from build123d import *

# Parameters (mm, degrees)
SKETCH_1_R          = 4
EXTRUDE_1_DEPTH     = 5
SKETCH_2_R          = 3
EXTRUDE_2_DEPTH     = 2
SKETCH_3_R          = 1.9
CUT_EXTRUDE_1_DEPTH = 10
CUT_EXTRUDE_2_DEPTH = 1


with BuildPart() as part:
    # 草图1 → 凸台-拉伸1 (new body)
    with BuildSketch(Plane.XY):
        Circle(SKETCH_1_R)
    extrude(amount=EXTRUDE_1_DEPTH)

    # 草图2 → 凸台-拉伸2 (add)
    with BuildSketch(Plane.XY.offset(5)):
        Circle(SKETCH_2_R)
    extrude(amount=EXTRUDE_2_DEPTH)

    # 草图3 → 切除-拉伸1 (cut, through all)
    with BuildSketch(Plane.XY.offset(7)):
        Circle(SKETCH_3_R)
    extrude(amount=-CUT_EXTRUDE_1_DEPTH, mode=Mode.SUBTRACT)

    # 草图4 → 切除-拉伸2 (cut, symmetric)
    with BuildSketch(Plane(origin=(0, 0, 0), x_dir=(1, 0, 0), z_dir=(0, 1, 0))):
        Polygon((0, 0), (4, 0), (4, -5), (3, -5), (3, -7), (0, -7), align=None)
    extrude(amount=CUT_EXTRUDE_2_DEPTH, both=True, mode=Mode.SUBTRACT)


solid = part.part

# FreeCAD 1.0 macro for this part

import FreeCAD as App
import Part
import Sketcher
from FreeCAD import Vector
Q = App.Units.Quantity

doc = App.newDocument("Part")
params = doc.addObject("Spreadsheet::Sheet", "Params")
for row, (alias, value) in enumerate([
    ("sketch1_diameter", "8 mm"),
    ("pad1_length", "5 mm"),
    ("sketch2_diameter", "6 mm"),
    ("pad2_length", "2 mm"),
    ("sketch3_diameter", "3.8 mm"),
    ("sketch4_width", "4 mm"),
    ("sketch4_width2", "3 mm"),
    ("sketch4_height", "7 mm"),
    ("sketch4_height2", "2 mm"),
    ("pocket2_length", "2 mm"),
], start=1):
    params.set(f"A{row}", alias)
    params.set(f"B{row}", "=" + value)
    params.setAlias(f"B{row}", alias)

body = doc.addObject("PartDesign::Body", "Body")

# Sketch on XY plane
sketch1 = body.newObject("Sketcher::SketchObject", "Sketch")
sketch1.AttachmentSupport = (doc.getObject("XY_Plane"), [""])
sketch1.MapMode = "FlatFace"
sketch1.addGeometry(Part.Circle(Vector(0, 0, 0), Vector(0, 0, 1), 4), False)
sketch1.addConstraint(Sketcher.Constraint("Coincident", 0, 3, -1, 1))
sketch1.addConstraint(Sketcher.Constraint("Diameter", 0, Q("8 mm")))
sketch1.setExpression("Constraints[1]", "Params.sketch1_diameter")
pad1 = body.newObject("PartDesign::Pad", "Pad")
pad1.Profile = sketch1
pad1.setExpression("Length", "Params.pad1_length")

# Sketch on XY plane
sketch2 = body.newObject("Sketcher::SketchObject", "Sketch001")
sketch2.AttachmentSupport = (doc.getObject("XY_Plane"), [""])
sketch2.MapMode = "FlatFace"
sketch2.AttachmentOffset = App.Placement(Vector(0, 0, 5), App.Rotation())
sketch2.addGeometry(Part.Circle(Vector(0, 0, 0), Vector(0, 0, 1), 3), False)
sketch2.addConstraint(Sketcher.Constraint("Coincident", 0, 3, -1, 1))
sketch2.addConstraint(Sketcher.Constraint("Diameter", 0, Q("6 mm")))
sketch2.setExpression("Constraints[1]", "Params.sketch2_diameter")
pad2 = body.newObject("PartDesign::Pad", "Pad001")
pad2.Profile = sketch2
pad2.setExpression("Length", "Params.pad2_length")

# Sketch on XY plane
sketch3 = body.newObject("Sketcher::SketchObject", "Sketch002")
sketch3.AttachmentSupport = (doc.getObject("XY_Plane"), [""])
sketch3.MapMode = "FlatFace"
sketch3.AttachmentOffset = App.Placement(Vector(0, 0, 7), App.Rotation())
sketch3.addGeometry(Part.Circle(Vector(0, 0, 0), Vector(0, 0, 1), 1.9), False)
sketch3.addConstraint(Sketcher.Constraint("Coincident", 0, 3, -1, 1))
sketch3.addConstraint(Sketcher.Constraint("Diameter", 0, Q("3.8 mm")))
sketch3.setExpression("Constraints[1]", "Params.sketch3_diameter")
pocket1 = body.newObject("PartDesign::Pocket", "Pocket")
pocket1.Profile = sketch3
pocket1.Type = "ThroughAll"

# Sketch on XZ plane
sketch4 = body.newObject("Sketcher::SketchObject", "Sketch003")
sketch4.AttachmentSupport = (doc.getObject("XZ_Plane"), [""])
sketch4.MapMode = "FlatFace"
sketch4.addGeometry(Part.LineSegment(Vector(4, 0, 0), Vector(0, 0, 0)), False)
sketch4.addGeometry(Part.LineSegment(Vector(0, 0, 0), Vector(0, 7, 0)), False)
sketch4.addGeometry(Part.LineSegment(Vector(0, 7, 0), Vector(3, 7, 0)), False)
sketch4.addGeometry(Part.LineSegment(Vector(3, 7, 0), Vector(3, 5, 0)), False)
sketch4.addGeometry(Part.LineSegment(Vector(3, 5, 0), Vector(4, 5, 0)), False)
sketch4.addGeometry(Part.LineSegment(Vector(4, 5, 0), Vector(4, 0, 0)), False)
sketch4.addConstraint(Sketcher.Constraint("Coincident", 0, 2, 1, 1))
sketch4.addConstraint(Sketcher.Constraint("Coincident", 1, 2, 2, 1))
sketch4.addConstraint(Sketcher.Constraint("Coincident", 2, 2, 3, 1))
sketch4.addConstraint(Sketcher.Constraint("Coincident", 3, 2, 4, 1))
sketch4.addConstraint(Sketcher.Constraint("Coincident", 4, 2, 5, 1))
sketch4.addConstraint(Sketcher.Constraint("Coincident", 5, 2, 0, 1))
sketch4.addConstraint(Sketcher.Constraint("Horizontal", 0))
sketch4.addConstraint(Sketcher.Constraint("Vertical", 1))
sketch4.addConstraint(Sketcher.Constraint("Horizontal", 2))
sketch4.addConstraint(Sketcher.Constraint("Vertical", 3))
sketch4.addConstraint(Sketcher.Constraint("Horizontal", 4))
sketch4.addConstraint(Sketcher.Constraint("Vertical", 5))
sketch4.addConstraint(Sketcher.Constraint("Coincident", 0, 2, -1, 1))
sketch4.addConstraint(Sketcher.Constraint("DistanceX", 0, 2, 0, 1, Q("4 mm")))
sketch4.addConstraint(Sketcher.Constraint("DistanceX", 2, 1, 2, 2, Q("3 mm")))
sketch4.addConstraint(Sketcher.Constraint("DistanceY", 1, 1, 1, 2, Q("7 mm")))
sketch4.addConstraint(Sketcher.Constraint("DistanceY", 3, 2, 3, 1, Q("2 mm")))
sketch4.setExpression("Constraints[13]", "Params.sketch4_width")
sketch4.setExpression("Constraints[14]", "Params.sketch4_width2")
sketch4.setExpression("Constraints[15]", "Params.sketch4_height")
sketch4.setExpression("Constraints[16]", "Params.sketch4_height2")
pocket2 = body.newObject("PartDesign::Pocket", "Pocket001")
pocket2.Profile = sketch4
pocket2.setExpression("Length", "Params.pocket2_length")
pocket2.Midplane = True

doc.recompute()
